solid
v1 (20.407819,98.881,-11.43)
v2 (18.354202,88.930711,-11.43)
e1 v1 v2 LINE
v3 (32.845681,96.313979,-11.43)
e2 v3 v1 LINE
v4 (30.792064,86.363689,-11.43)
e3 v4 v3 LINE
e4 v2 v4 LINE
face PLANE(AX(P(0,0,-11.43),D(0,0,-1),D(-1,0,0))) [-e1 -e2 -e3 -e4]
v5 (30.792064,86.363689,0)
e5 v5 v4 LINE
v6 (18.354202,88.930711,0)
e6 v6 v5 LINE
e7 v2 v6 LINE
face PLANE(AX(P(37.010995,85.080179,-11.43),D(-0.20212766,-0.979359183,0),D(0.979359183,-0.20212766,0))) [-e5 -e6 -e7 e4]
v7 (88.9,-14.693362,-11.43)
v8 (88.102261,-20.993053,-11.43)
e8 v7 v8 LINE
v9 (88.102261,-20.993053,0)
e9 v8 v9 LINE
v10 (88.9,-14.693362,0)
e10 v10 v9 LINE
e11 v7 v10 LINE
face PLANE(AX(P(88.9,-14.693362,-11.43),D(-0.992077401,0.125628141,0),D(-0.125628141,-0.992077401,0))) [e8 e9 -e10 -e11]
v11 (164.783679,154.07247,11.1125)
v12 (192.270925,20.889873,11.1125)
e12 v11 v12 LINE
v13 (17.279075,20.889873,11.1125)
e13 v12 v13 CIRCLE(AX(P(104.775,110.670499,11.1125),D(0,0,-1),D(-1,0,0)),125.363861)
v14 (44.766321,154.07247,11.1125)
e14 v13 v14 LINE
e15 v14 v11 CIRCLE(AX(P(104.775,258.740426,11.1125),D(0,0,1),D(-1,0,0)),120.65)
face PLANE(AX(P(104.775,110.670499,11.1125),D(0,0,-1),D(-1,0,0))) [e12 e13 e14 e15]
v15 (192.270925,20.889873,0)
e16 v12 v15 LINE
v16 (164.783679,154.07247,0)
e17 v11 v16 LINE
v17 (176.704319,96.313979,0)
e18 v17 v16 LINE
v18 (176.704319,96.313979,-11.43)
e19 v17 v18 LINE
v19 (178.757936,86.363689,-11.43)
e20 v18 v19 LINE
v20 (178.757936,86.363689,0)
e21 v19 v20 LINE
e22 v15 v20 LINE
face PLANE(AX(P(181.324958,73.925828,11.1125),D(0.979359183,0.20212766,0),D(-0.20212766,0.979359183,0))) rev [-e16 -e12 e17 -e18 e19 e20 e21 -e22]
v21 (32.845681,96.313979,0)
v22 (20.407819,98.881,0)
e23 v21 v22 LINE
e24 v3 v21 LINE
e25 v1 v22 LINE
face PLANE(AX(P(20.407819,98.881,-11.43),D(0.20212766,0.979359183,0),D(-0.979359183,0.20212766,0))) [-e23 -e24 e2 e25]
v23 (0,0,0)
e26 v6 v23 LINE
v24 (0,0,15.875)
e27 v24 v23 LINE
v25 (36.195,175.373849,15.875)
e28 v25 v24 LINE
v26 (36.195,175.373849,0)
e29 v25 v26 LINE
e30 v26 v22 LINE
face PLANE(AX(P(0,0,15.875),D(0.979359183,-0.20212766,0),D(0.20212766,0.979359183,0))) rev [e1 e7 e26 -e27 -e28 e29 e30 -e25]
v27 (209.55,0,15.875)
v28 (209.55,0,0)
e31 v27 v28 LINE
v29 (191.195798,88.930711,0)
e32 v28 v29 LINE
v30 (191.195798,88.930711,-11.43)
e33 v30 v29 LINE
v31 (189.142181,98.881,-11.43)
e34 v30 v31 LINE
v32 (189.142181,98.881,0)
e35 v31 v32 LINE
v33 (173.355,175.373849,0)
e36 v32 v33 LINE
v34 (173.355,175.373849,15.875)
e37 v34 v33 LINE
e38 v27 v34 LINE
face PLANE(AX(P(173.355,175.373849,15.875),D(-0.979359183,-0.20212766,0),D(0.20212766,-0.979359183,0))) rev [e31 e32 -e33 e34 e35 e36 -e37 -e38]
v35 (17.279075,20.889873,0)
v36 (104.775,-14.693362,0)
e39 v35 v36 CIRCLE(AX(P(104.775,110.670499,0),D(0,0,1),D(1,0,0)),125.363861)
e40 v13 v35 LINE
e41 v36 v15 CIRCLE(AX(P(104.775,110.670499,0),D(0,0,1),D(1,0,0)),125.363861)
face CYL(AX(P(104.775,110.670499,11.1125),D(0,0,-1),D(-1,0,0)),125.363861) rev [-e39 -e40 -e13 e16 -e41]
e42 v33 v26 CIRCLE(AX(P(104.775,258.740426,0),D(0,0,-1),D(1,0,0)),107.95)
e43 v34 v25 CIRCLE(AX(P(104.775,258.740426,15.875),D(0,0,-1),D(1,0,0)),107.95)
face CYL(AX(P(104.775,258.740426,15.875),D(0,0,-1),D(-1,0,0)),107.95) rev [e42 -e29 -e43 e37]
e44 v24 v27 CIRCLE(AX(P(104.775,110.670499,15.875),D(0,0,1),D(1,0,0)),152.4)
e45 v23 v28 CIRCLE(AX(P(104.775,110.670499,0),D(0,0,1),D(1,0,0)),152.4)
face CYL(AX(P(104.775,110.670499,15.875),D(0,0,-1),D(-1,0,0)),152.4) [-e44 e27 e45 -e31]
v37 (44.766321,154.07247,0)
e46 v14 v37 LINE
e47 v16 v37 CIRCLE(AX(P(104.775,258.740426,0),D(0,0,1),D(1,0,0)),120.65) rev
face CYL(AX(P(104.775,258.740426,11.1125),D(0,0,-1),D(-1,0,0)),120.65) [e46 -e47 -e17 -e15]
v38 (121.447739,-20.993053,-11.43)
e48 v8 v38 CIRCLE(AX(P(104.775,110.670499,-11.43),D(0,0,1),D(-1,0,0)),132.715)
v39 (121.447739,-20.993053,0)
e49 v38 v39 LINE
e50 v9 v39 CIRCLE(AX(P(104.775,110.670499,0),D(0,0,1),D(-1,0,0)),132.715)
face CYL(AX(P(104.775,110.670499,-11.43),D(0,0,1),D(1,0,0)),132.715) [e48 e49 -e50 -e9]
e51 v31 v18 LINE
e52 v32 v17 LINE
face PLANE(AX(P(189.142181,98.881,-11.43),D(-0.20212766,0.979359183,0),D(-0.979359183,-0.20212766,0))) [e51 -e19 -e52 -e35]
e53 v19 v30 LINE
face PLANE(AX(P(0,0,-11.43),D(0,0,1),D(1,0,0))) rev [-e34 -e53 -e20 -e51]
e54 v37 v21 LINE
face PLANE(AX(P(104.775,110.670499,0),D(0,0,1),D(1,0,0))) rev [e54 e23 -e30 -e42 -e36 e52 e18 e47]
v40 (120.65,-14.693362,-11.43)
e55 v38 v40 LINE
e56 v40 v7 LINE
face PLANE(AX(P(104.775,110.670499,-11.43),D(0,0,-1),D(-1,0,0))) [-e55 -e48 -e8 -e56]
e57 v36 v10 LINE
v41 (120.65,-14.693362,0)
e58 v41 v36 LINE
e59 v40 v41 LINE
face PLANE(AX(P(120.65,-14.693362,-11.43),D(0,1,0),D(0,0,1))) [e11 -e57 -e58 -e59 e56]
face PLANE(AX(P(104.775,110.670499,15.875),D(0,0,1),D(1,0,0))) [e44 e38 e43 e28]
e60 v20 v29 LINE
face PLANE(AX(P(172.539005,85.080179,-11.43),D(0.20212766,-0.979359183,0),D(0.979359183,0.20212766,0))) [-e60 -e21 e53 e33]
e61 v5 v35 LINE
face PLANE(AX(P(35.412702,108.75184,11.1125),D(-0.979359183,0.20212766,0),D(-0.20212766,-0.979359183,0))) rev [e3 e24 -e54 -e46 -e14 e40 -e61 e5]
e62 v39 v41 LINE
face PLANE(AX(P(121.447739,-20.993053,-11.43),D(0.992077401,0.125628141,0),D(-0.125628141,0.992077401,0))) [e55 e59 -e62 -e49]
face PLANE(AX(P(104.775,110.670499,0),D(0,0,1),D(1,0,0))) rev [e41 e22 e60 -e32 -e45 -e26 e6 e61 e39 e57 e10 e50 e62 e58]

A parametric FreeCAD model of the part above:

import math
import FreeCAD as App
import Part
import Sketcher
Q = App.Units.Quantity

doc = App.newDocument("Part")
params = doc.addObject("Spreadsheet::Sheet", "Params")
for row, (alias, value) in enumerate([
    ("sketch1_radius", "6 in"),
    ("sketch1_radius2", "4.25 in"),
    ("sketch1_length", "7.05 in"),
    ("pad1_length", "0.625 in"),
    ("sketch2_radius", "5.225 in"),
    ("sketch2_length", "0.4 in"),
    ("sketch2_width", "1.25 in"),
    ("sketch2_length2", "0.75 in"),
    ("sketch2_length3", "0.25 in"),
    ("pad2_length", "0.45 in"),
    ("sketch3_radius", "4.75 in"),
    ("sketch3_length", "1.4 in"),
    ("pocket1_length", "12.43 mm"),
    ("pocket1_length2", "0.4375 in"),
], start=1):
    params.set(f"A{row}", alias)
    params.set(f"B{row}", "=" + value)
    params.setAlias(f"B{row}", alias)

body = doc.addObject("PartDesign::Body", "Body")

# Sketch on XY plane
sketch1 = doc.addObject("Sketcher::SketchObject", "Sketch")
body.addObject(sketch1)
sketch1.AttachmentSupport = (doc.XY_Plane, [""])
sketch1.MapMode = "FlatFace"
sketch1.addGeometry([
    Part.LineSegment(App.Vector(36, 175, 0), App.Vector(0, 0, 0)),
    Part.ArcOfCircle(Part.Circle(App.Vector(105, 111, 0), App.Vector(0, 0, 1), 152), math.radians(-133), math.radians(-47)),
    Part.LineSegment(App.Vector(210, 0, 0), App.Vector(173, 175, 0)),
    Part.ArcOfCircle(Part.Circle(App.Vector(105, 259, 0), App.Vector(0, 0, 1), 108), math.radians(-129), math.radians(-51)),
], False)
sketch1.addConstraint([
    Sketcher.Constraint("Coincident", 0, 2, 1, 1),
    Sketcher.Constraint("Coincident", 1, 2, 2, 1),
    Sketcher.Constraint("Coincident", 2, 2, 3, 2),
    Sketcher.Constraint("Coincident", 3, 1, 0, 1),
    Sketcher.Constraint("Coincident", 0, 2, -1, 1),
    Sketcher.Constraint("PointOnObject", 1, 2, -1),
    Sketcher.Constraint("Horizontal", 2, 2, 3, 1),
    Sketcher.Constraint("Vertical", 1, 3, 3, 3),
    Sketcher.Constraint("Radius", 1, Q("6 in")),
    Sketcher.Constraint("Radius", 3, Q("4.25 in")),
    Sketcher.Constraint("DistanceX", 1, 3, 2, 2, Q("2.7 in")),
    Sketcher.Constraint("Distance", 0, Q("7.05 in")),
    Sketcher.Constraint("DistanceX", -1, 1, 1, 2, Q("8.25 in")),
])
sketch1.setExpression("Constraints[8]", "Params.sketch1_radius")
sketch1.setExpression("Constraints[9]", "Params.sketch1_radius2")
sketch1.setExpression("Constraints[11]", "Params.sketch1_length")
pad1 = doc.addObject("PartDesign::Pad", "Pad")
body.addObject(pad1)
pad1.Profile = sketch1
pad1.setExpression("Length", "Params.pad1_length")

# Sketch on XY plane
sketch2 = doc.addObject("Sketcher::SketchObject", "Sketch001")
body.addObject(sketch2)
sketch2.AttachmentSupport = (doc.XY_Plane, [""])
sketch2.MapMode = "FlatFace"
sketch2.addGeometry([
    Part.LineSegment(App.Vector(39, 95, 0), App.Vector(20, 99, 0)),  # 0
    Part.LineSegment(App.Vector(20, 99, 0), App.Vector(18, 89, 0)),  # 1
    Part.LineSegment(App.Vector(18, 89, 0), App.Vector(37, 85, 0)),  # 2
    Part.LineSegment(App.Vector(37, 85, 0), App.Vector(39, 95, 0)),  # 3
    Part.LineSegment(App.Vector(189, 99, 0), App.Vector(170, 95, 0)),  # 4
    Part.LineSegment(App.Vector(170, 95, 0), App.Vector(173, 85, 0)),  # 5
    Part.LineSegment(App.Vector(173, 85, 0), App.Vector(191, 89, 0)),  # 6
    Part.LineSegment(App.Vector(191, 89, 0), App.Vector(189, 99, 0)),  # 7
    Part.LineSegment(App.Vector(121, -21, 0), App.Vector(121, -15, 0)),  # 8
    Part.LineSegment(App.Vector(121, -15, 0), App.Vector(89, -15, 0)),  # 9
    Part.LineSegment(App.Vector(89, -15, 0), App.Vector(88, -21, 0)),  # 10
    Part.ArcOfCircle(Part.Circle(App.Vector(105, 111, 0), App.Vector(0, 0, 1), 133), math.radians(-97.22), math.radians(-82.78)),  # 11
], False)
sketch2.addConstraint([
    Sketcher.Constraint("Coincident", 0, 2, 1, 1),
    Sketcher.Constraint("Coincident", 1, 2, 2, 1),
    Sketcher.Constraint("Coincident", 2, 2, 3, 1),
    Sketcher.Constraint("Coincident", 3, 2, 0, 1),
    Sketcher.Constraint("Coincident", 4, 2, 5, 1),
    Sketcher.Constraint("Coincident", 5, 2, 6, 1),
    Sketcher.Constraint("Coincident", 6, 2, 7, 1),
    Sketcher.Constraint("Coincident", 7, 2, 4, 1),
    Sketcher.Constraint("Coincident", 8, 2, 9, 1),
    Sketcher.Constraint("Coincident", 9, 2, 10, 1),
    Sketcher.Constraint("Coincident", 10, 2, 11, 1),
    Sketcher.Constraint("Coincident", 11, 2, 8, 1),
    Sketcher.Constraint("Horizontal", 9),
    Sketcher.Constraint("Perpendicular", 0, 1),
    Sketcher.Constraint("Perpendicular", 1, 2),
    Sketcher.Constraint("Perpendicular", 2, 3),
    Sketcher.Constraint("Perpendicular", 4, 5),
    Sketcher.Constraint("Perpendicular", 5, 6),
    Sketcher.Constraint("Perpendicular", 6, 7),
    Sketcher.Constraint("Horizontal", 3, 2, 4, 2),
    Sketcher.Constraint("Horizontal", 2, 2, 5, 2),
    Sketcher.Constraint("Horizontal", 1, 2, 6, 2),
    Sketcher.Constraint("Horizontal", 10, 2, 11, 2),
    Sketcher.Constraint("Equal", 2, 4),
    Sketcher.Constraint("Equal", 8, 10),
    Sketcher.Constraint("Radius", 11, Q("5.225 in")),
    Sketcher.Constraint("Distance", 1, Q("0.4 in")),
    Sketcher.Constraint("DistanceX", 9, 2, 9, 1, Q("1.25 in")),
    Sketcher.Constraint("DistanceX", -1, 1, 9, 2, Q("3.5 in")),
    Sketcher.Constraint("Distance", 0, Q("0.75 in")),
    Sketcher.Constraint("Distance", 8, Q("0.25 in")),
    Sketcher.Constraint("DistanceY", -1, 1, 11, 3, 110.670499),
    Sketcher.Constraint("DistanceY", -1, 1, 0, 2, 98.881),
    Sketcher.Constraint("DistanceX", -1, 1, 0, 2, 20.407819),
    Sketcher.Constraint("DistanceY", -1, 1, 1, 2, 88.930711),
    Sketcher.Constraint("DistanceX", -1, 1, 4, 2, 170.485388),
    Sketcher.Constraint("DistanceX", -1, 1, 10, 2, 88.102261),
])
sketch2.setExpression("Constraints[25]", "Params.sketch2_radius")
sketch2.setExpression("Constraints[26]", "Params.sketch2_length")
sketch2.setExpression("Constraints[27]", "Params.sketch2_width")
sketch2.setExpression("Constraints[29]", "Params.sketch2_length2")
sketch2.setExpression("Constraints[30]", "Params.sketch2_length3")
pad2 = doc.addObject("PartDesign::Pad", "Pad001")
body.addObject(pad2)
pad2.Profile = sketch2
pad2.setExpression("Length", "Params.pad2_length")
pad2.Reversed = True

# Sketch on XY plane
sketch3 = doc.addObject("Sketcher::SketchObject", "Sketch002")
body.addObject(sketch3)
sketch3.AttachmentSupport = (doc.XY_Plane, [""])
sketch3.MapMode = "FlatFace"
sketch3.addGeometry([
    Part.LineSegment(App.Vector(174, 109, 0), App.Vector(181, 74, 0)),  # 0
    Part.LineSegment(App.Vector(181, 74, 0), App.Vector(192, 21, 0)),  # 1
    Part.ArcOfCircle(Part.Circle(App.Vector(105, 111, 0), App.Vector(0, 0, 1), 125), math.radians(-134), math.radians(-46)),  # 2
    Part.LineSegment(App.Vector(17, 21, 0), App.Vector(28, 74, 0)),  # 3
    Part.LineSegment(App.Vector(28, 74, 0), App.Vector(35, 109, 0)),  # 4
    Part.LineSegment(App.Vector(35, 109, 0), App.Vector(45, 154, 0)),  # 5
    Part.ArcOfCircle(Part.Circle(App.Vector(105, 259, 0), App.Vector(0, 0, 1), 121), math.radians(-120), math.radians(-60)),  # 6
    Part.LineSegment(App.Vector(165, 154, 0), App.Vector(174, 109, 0)),  # 7
], False)
sketch3.addConstraint([
    Sketcher.Constraint("Coincident", 0, 2, 1, 1),
    Sketcher.Constraint("Coincident", 1, 2, 2, 2),
    Sketcher.Constraint("Coincident", 2, 1, 3, 1),
    Sketcher.Constraint("Coincident", 3, 2, 4, 1),
    Sketcher.Constraint("Coincident", 4, 2, 5, 1),
    Sketcher.Constraint("Coincident", 5, 2, 6, 1),
    Sketcher.Constraint("Coincident", 6, 2, 7, 1),
    Sketcher.Constraint("Coincident", 7, 2, 0, 1),
    Sketcher.Constraint("Parallel", 0, 1),
    Sketcher.Constraint("Parallel", 3, 4),
    Sketcher.Constraint("Parallel", 4, 5),
    Sketcher.Constraint("Parallel", 1, 7),
    Sketcher.Constraint("Horizontal", 1, 2, 2, 1),
    Sketcher.Constraint("Horizontal", 0, 2, 3, 2),
    Sketcher.Constraint("Horizontal", 5, 2, 6, 2),
    Sketcher.Constraint("Horizontal", 4, 2, 7, 2),
    Sketcher.Constraint("Vertical", 2, 3, 6, 3),
    Sketcher.Constraint("Radius", 6, Q("4.75 in")),
    Sketcher.Constraint("Distance", 0, Q("1.4 in")),
    Sketcher.Constraint("DistanceX", -1, 1, 2, 3, Q("4.125 in")),
    Sketcher.Constraint("Radius", 2, 125.363861),
    Sketcher.Constraint("Distance", 5, 46.2758),
    Sketcher.Constraint("DistanceY", -1, 1, 2, 3, 110.670499),
    Sketcher.Constraint("Distance", 1, 54.153732),
    Sketcher.Constraint("DistanceY", -1, 1, 4, 2, 108.75184),
    Sketcher.Constraint("DistanceX", -1, 1, 5, 2, 44.766321),
])
sketch3.setExpression("Constraints[17]", "Params.sketch3_radius")
sketch3.setExpression("Constraints[18]", "Params.sketch3_length")
pocket1 = doc.addObject("PartDesign::Pocket", "Pocket")
body.addObject(pocket1)
pocket1.Profile = sketch3
pocket1.Type = "TwoLengths"
pocket1.setExpression("Length", "Params.pocket1_length")
pocket1.setExpression("Length2", "Params.pocket1_length2")

doc.recompute()
